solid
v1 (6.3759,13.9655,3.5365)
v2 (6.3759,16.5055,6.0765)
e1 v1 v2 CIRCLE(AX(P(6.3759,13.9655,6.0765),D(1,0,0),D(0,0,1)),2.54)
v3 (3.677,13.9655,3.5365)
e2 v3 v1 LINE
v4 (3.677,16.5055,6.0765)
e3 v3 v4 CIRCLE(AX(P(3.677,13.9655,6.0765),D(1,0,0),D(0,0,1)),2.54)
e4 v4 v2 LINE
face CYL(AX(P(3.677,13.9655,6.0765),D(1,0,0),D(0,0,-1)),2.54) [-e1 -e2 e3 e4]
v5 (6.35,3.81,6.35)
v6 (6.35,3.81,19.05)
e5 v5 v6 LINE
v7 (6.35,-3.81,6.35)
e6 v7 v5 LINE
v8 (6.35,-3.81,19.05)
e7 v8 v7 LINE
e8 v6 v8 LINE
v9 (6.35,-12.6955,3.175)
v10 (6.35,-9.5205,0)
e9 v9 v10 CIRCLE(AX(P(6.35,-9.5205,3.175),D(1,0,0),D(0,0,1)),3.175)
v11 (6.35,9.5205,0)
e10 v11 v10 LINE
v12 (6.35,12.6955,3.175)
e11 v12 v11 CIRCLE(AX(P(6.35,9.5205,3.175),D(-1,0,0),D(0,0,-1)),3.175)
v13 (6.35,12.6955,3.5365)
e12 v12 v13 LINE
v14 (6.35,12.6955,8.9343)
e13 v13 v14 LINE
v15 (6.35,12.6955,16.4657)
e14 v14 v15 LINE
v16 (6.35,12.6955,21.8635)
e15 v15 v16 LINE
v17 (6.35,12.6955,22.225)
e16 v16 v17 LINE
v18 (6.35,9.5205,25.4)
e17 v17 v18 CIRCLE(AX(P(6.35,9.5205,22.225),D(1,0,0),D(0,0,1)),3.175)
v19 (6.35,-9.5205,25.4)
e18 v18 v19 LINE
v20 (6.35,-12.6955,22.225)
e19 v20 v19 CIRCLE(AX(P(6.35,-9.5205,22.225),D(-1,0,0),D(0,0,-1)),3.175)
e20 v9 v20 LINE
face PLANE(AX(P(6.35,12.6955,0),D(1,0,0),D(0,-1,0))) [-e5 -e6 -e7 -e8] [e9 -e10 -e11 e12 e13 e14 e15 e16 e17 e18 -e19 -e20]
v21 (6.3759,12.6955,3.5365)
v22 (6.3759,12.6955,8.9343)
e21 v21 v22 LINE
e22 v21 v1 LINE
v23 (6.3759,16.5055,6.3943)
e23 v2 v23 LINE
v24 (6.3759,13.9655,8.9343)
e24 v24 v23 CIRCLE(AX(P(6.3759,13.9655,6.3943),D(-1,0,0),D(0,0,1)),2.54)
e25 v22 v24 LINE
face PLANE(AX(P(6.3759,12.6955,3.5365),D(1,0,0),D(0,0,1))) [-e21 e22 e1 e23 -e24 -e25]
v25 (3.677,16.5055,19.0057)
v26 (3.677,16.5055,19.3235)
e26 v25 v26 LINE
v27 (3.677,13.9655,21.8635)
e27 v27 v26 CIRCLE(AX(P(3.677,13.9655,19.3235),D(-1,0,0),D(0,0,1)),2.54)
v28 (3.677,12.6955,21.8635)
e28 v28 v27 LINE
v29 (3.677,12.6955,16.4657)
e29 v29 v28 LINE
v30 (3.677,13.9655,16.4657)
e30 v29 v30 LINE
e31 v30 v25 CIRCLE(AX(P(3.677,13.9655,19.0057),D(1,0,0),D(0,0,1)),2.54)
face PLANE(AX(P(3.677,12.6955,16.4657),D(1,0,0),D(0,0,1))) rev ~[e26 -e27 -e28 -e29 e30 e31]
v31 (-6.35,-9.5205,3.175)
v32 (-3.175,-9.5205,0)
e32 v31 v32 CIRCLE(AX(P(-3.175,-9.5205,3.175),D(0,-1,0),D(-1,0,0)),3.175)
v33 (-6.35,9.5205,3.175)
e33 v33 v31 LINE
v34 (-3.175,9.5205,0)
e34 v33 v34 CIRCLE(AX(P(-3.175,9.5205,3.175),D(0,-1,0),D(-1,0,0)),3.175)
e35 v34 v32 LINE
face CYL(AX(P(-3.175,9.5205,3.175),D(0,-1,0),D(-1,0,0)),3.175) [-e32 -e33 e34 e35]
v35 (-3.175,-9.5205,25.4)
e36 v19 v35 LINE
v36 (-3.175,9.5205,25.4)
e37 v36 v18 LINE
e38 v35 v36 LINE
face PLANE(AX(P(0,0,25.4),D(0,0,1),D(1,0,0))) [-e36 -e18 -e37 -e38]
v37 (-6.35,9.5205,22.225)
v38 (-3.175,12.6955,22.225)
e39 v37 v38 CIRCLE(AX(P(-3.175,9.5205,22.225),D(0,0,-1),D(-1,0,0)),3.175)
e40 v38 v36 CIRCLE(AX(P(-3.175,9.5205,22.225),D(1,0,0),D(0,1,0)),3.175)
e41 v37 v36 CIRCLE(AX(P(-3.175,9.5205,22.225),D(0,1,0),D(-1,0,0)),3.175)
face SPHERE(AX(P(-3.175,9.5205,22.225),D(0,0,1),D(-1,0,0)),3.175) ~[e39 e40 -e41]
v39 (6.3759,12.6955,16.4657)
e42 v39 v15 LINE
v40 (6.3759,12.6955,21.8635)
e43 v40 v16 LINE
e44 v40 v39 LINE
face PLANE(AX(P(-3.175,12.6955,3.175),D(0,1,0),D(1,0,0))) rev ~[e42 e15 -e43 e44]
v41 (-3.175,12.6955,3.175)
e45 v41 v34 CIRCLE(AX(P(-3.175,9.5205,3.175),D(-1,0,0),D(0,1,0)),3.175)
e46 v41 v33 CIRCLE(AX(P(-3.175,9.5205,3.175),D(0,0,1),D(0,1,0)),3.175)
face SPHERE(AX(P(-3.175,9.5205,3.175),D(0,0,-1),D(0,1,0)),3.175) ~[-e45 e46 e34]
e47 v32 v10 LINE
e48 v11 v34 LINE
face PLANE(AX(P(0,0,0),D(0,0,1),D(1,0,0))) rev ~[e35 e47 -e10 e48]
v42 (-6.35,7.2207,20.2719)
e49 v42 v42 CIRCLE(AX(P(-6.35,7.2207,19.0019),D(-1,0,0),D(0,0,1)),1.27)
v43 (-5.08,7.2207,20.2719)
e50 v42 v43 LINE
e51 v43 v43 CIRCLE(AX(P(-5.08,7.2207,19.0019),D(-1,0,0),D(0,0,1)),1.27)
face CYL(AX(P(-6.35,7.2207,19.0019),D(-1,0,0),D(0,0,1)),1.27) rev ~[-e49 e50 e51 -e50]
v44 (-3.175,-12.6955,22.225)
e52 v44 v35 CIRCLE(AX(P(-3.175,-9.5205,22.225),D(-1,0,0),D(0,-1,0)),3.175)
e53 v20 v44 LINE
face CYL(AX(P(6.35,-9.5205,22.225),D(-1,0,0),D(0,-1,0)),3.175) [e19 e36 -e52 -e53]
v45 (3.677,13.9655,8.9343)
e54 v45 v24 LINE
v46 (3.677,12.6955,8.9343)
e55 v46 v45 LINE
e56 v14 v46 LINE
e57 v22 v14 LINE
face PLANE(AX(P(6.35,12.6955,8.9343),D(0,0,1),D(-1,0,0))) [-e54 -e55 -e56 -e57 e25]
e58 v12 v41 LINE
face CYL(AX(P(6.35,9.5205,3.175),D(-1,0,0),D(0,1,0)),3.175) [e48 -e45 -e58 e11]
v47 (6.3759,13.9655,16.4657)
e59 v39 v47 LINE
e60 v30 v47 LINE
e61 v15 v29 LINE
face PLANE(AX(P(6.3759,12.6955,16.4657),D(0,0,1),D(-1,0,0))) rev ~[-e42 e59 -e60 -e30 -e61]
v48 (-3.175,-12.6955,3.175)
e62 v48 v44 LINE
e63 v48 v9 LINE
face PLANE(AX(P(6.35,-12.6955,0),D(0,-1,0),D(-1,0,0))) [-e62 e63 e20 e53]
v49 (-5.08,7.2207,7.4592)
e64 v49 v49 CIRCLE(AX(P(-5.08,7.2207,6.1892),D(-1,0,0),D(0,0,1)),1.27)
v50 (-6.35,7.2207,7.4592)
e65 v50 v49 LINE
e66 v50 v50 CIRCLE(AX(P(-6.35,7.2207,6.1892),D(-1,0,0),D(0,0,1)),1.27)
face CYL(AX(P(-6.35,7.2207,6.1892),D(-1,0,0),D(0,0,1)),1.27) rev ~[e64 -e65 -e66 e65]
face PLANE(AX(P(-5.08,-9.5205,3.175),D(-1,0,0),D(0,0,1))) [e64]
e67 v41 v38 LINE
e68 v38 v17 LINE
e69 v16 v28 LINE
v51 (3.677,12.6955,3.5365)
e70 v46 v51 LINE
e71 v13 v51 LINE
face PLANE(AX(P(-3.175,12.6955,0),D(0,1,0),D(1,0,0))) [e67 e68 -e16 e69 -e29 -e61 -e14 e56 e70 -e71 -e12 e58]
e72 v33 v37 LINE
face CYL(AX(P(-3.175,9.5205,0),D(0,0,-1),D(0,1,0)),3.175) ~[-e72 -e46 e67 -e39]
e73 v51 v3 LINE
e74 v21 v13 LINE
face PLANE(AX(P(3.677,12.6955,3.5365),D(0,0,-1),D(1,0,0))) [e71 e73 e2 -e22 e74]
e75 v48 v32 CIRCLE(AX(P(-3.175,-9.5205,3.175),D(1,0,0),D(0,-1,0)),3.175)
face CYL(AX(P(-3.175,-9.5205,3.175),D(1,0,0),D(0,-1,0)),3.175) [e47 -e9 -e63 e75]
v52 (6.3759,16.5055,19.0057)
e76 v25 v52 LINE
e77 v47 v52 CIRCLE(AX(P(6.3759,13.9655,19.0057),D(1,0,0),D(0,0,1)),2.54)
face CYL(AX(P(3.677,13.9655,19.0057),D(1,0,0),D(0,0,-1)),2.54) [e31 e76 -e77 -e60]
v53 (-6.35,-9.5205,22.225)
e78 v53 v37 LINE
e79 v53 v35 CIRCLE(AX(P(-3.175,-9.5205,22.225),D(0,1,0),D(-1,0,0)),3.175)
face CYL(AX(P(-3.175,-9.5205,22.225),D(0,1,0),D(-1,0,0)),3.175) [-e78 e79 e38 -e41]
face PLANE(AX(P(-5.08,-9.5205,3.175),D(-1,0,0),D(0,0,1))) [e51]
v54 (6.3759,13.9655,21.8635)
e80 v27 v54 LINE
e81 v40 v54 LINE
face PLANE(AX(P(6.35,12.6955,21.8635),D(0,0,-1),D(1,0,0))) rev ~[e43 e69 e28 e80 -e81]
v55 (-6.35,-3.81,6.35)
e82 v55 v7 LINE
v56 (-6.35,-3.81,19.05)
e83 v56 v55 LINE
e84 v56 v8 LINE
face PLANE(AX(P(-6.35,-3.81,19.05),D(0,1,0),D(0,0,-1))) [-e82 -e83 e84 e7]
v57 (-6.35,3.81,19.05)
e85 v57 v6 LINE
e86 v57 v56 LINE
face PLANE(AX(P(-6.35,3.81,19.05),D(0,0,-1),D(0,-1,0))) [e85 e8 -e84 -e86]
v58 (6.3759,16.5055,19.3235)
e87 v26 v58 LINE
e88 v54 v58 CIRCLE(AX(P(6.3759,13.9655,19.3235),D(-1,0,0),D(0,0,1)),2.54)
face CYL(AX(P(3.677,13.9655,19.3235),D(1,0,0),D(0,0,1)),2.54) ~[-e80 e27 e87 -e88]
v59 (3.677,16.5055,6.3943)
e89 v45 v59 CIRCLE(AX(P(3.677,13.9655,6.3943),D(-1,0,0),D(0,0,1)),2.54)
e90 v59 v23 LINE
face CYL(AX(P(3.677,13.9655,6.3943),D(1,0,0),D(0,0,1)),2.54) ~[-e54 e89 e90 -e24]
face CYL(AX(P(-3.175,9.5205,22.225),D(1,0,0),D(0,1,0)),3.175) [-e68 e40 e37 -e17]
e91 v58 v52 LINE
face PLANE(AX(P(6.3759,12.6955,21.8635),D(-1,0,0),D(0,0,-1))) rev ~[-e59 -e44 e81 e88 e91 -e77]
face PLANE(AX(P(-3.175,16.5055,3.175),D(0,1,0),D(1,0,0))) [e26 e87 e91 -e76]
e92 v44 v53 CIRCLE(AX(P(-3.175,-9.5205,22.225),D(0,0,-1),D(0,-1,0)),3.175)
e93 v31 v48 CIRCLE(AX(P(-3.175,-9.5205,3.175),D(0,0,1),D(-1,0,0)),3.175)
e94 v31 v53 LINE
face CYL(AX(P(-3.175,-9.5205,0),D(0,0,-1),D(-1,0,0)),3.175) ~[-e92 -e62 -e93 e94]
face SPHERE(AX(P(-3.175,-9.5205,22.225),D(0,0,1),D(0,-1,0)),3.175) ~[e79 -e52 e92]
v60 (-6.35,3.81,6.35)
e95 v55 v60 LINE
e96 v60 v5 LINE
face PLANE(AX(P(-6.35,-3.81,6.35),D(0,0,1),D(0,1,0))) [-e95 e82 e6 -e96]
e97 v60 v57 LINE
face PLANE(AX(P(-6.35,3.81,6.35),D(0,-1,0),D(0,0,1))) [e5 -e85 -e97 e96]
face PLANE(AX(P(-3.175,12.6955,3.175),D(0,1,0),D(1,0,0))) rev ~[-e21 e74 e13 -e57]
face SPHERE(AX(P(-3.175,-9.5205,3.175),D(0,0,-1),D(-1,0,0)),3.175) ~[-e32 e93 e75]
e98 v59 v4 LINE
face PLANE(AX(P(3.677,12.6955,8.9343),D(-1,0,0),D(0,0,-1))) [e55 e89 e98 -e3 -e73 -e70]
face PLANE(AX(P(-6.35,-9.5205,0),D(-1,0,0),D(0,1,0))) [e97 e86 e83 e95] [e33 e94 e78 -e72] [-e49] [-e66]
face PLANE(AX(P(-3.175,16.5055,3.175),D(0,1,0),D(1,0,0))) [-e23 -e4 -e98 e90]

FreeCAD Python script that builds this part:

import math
import FreeCAD as App
import Part
import Sketcher
from FreeCAD import Vector
Q = App.Units.Quantity


def edges_at(feature, points):
    """Names of the edges that pass closest to the given points."""
    edges = feature.Shape.Edges
    near = lambda p: min(range(len(edges)), key=lambda i: edges[i].distToShape(Part.Vertex(*p))[0])
    return sorted({f"Edge{near(p) + 1}" for p in points})

doc = App.newDocument("Part")
body = doc.addObject("PartDesign::Body", "Body")

# Sketch on XY plane
sketch1 = body.newObject("Sketcher::SketchObject", "Sketch")
sketch1.AttachmentSupport = (doc.getObject("XY_Plane"), [""])
sketch1.MapMode = "FlatFace"
sketch1.addGeometry([
    Part.LineSegment(Vector(-3.2, -12.7, 0), Vector(6.3, -12.7, 0)),  # 0
    Part.LineSegment(Vector(6.3, -12.7, 0), Vector(6.3, 12.7, 0)),  # 1
    Part.LineSegment(Vector(6.3, 12.7, 0), Vector(-3.2, 12.7, 0)),  # 2
    Part.ArcOfCircle(Part.Circle(Vector(-3.2, 9.5, 0), Vector(0, 0, 1), 3.2), math.radians(90), math.radians(180)),  # 3
    Part.LineSegment(Vector(-6.3, 9.5, 0), Vector(-6.3, -9.5, 0)),  # 4
    Part.ArcOfCircle(Part.Circle(Vector(-3.2, -9.5, 0), Vector(0, 0, 1), 3.2), math.radians(180), math.radians(270)),  # 5
], False)
sketch1.addConstraint([
    Sketcher.Constraint("Coincident", 0, 2, 1, 1),
    Sketcher.Constraint("Coincident", 1, 2, 2, 1),
    Sketcher.Constraint("Tangent", 2, 2, 3, 1),
    Sketcher.Constraint("Tangent", 3, 2, 4, 1),
    Sketcher.Constraint("Tangent", 4, 2, 5, 1),
    Sketcher.Constraint("Tangent", 5, 2, 0, 1),
    Sketcher.Constraint("Horizontal", 0),
    Sketcher.Constraint("Vertical", 1),
    Sketcher.Constraint("Horizontal", 2),
    Sketcher.Constraint("Vertical", 4),
    Sketcher.Constraint("Equal", 3, 5),
    Sketcher.Constraint("Radius", 3, Q("0.125 in")),
    Sketcher.Constraint("DistanceX", 3, 2, 1, 2, Q("0.5 in")),
    Sketcher.Constraint("DistanceX", 3, 3, -1, 1, Q("0.125 in")),
    Sketcher.Constraint("DistanceY", 1, 1, 1, 2, 25.391),
    Sketcher.Constraint("DistanceY", -1, 1, 3, 3, 9.5205),
])
pad1 = body.newObject("PartDesign::Pad", "Pad")
pad1.Profile = sketch1
pad1.Length = Q("1 in")
doc.recompute()

fillet = body.newObject("PartDesign::Fillet", "Fillet")
fillet.Base = (pad1, edges_at(pad1, [
    (-6.35, 0, 25.4),
    (-5.42, -11.766, 25.4),
    (1.587, -12.695, 25.4),
    (1.587, 12.695, 25.4),
    (-5.42, 11.766, 25.4),
    (-5.42, 11.766, 0),
    (1.587, 12.695, 0),
    (-5.42, -11.766, 0),
    (1.587, -12.695, 0),
    (-6.35, 0, 0),
]))
fillet.Radius = Q("0.125 in")

# Sketch on XZ plane
sketch2 = body.newObject("Sketcher::SketchObject", "Sketch001")
sketch2.AttachmentSupport = (doc.getObject("XZ_Plane"), [""])
sketch2.MapMode = "FlatFace"
sketch2.AttachmentOffset = App.Placement(Vector(0, 0, -12.6955), App.Rotation())
sketch2.addGeometry([
    Part.Circle(Vector(-0.5, 19.4, 0), Vector(0, 0, 1), 2.5),
    Part.Circle(Vector(-0.5, 6, 0), Vector(0, 0, 1), 2.5),
], False)
sketch2.addConstraint([
    Sketcher.Constraint("Equal", 0, 1),
    Sketcher.Constraint("Vertical", 0, 3, 1, 3),
    Sketcher.Constraint("Diameter", 0, Q("0.2 in")),
    Sketcher.Constraint("DistanceX", 0, 3, -1, 1, 0.5034),
    Sketcher.Constraint("DistanceY", -1, 1, 0, 3, 19.381),
    Sketcher.Constraint("DistanceY", -1, 1, 1, 3, 6.019),
])
pad2 = body.newObject("PartDesign::Pad", "Pad001")
pad2.Profile = sketch2
pad2.Length = Q("0.5 in")
pad2.Reversed = True

# Sketch on YZ plane
sketch3 = body.newObject("Sketcher::SketchObject", "Sketch002")
sketch3.AttachmentSupport = (doc.getObject("YZ_Plane"), [""])
sketch3.MapMode = "FlatFace"
sketch3.AttachmentOffset = App.Placement(Vector(0, 0, -0.25 * 25.4), App.Rotation())
sketch3.addGeometry([
    Part.LineSegment(Vector(4, 6, 0), Vector(-4, 6, 0)),
    Part.LineSegment(Vector(-4, 6, 0), Vector(-4, 19, 0)),
    Part.LineSegment(Vector(-4, 19, 0), Vector(4, 19, 0)),
    Part.LineSegment(Vector(4, 19, 0), Vector(4, 6, 0)),
], False)
sketch3.addConstraint([
    Sketcher.Constraint("Coincident", 0, 2, 1, 1),
    Sketcher.Constraint("Coincident", 1, 2, 2, 1),
    Sketcher.Constraint("Coincident", 2, 2, 3, 1),
    Sketcher.Constraint("Coincident", 3, 2, 0, 1),
    Sketcher.Constraint("Horizontal", 0),
    Sketcher.Constraint("Vertical", 1),
    Sketcher.Constraint("Horizontal", 2),
    Sketcher.Constraint("Vertical", 3),
    Sketcher.Constraint("DistanceX", 0, 2, 0, 1, Q("0.3 in")),
    Sketcher.Constraint("DistanceY", 1, 1, 1, 2, Q("0.5 in")),
    Sketcher.Constraint("DistanceX", 0, 2, -1, 1, Q("0.15 in")),
    Sketcher.Constraint("DistanceY", -1, 1, 0, 2, Q("0.25 in")),
])
pocket1 = body.newObject("PartDesign::Pocket", "Pocket")
pocket1.Profile = sketch3
pocket1.Length = Q("0.5 in")
pocket1.Reversed = True

# Sketch on XZ plane
sketch4 = body.newObject("Sketcher::SketchObject", "Sketch003")
sketch4.AttachmentSupport = (doc.getObject("XZ_Plane"), [""])
sketch4.MapMode = "FlatFace"
sketch4.AttachmentOffset = App.Placement(Vector(0, 0, -25.3955), App.Rotation())
sketch4.addGeometry([
    Part.LineSegment(Vector(11, -3, 0), Vector(-10, -3, 0)),
    Part.LineSegment(Vector(-10, -3, 0), Vector(-10, 29, 0)),
    Part.LineSegment(Vector(-10, 29, 0), Vector(11, 29, 0)),
    Part.LineSegment(Vector(11, 29, 0), Vector(11, -3, 0)),
], False)
sketch4.addConstraint([
    Sketcher.Constraint("Coincident", 0, 2, 1, 1),
    Sketcher.Constraint("Coincident", 1, 2, 2, 1),
    Sketcher.Constraint("Coincident", 2, 2, 3, 1),
    Sketcher.Constraint("Coincident", 3, 2, 0, 1),
    Sketcher.Constraint("Horizontal", 0),
    Sketcher.Constraint("Vertical", 1),
    Sketcher.Constraint("Horizontal", 2),
    Sketcher.Constraint("Vertical", 3),
    Sketcher.Constraint("DistanceX", 0, 2, 0, 1, 20.3814),
    Sketcher.Constraint("DistanceY", 1, 1, 1, 2, 31.3632),
    Sketcher.Constraint("DistanceX", 0, 2, -1, 1, 9.865),
    Sketcher.Constraint("DistanceY", 0, 2, -1, 1, 2.7454),
])
pocket2 = body.newObject("PartDesign::Pocket", "Pocket001")
pocket2.Profile = sketch4
pocket2.Length = Q("0.5 in")
pocket2.Reversed = True

# Sketch on XZ plane
sketch5 = body.newObject("Sketcher::SketchObject", "Sketch004")
sketch5.AttachmentSupport = (doc.getObject("XZ_Plane"), [""])
sketch5.MapMode = "FlatFace"
sketch5.AttachmentOffset = App.Placement(Vector(0, 0, -12.6955), App.Rotation())
sketch5.addGeometry([
    Part.LineSegment(Vector(6.4, 16.5, 0), Vector(3.7, 16.5, 0)),  # 0
    Part.LineSegment(Vector(3.7, 16.5, 0), Vector(3.7, 21.9, 0)),  # 1
    Part.LineSegment(Vector(3.7, 21.9, 0), Vector(6.4, 21.9, 0)),  # 2
    Part.LineSegment(Vector(6.4, 21.9, 0), Vector(6.4, 16.5, 0)),  # 3
    Part.LineSegment(Vector(3.7, 3.5, 0), Vector(3.7, 8.9, 0)),  # 4
    Part.LineSegment(Vector(3.7, 8.9, 0), Vector(6.4, 8.9, 0)),  # 5
    Part.LineSegment(Vector(6.4, 8.9, 0), Vector(6.4, 3.5, 0)),  # 6
    Part.LineSegment(Vector(6.4, 3.5, 0), Vector(3.7, 3.5, 0)),  # 7
], False)
sketch5.addConstraint([
    Sketcher.Constraint("Coincident", 0, 2, 1, 1),
    Sketcher.Constraint("Coincident", 1, 2, 2, 1),
    Sketcher.Constraint("Coincident", 2, 2, 3, 1),
    Sketcher.Constraint("Coincident", 3, 2, 0, 1),
    Sketcher.Constraint("Coincident", 4, 2, 5, 1),
    Sketcher.Constraint("Coincident", 5, 2, 6, 1),
    Sketcher.Constraint("Coincident", 6, 2, 7, 1),
    Sketcher.Constraint("Coincident", 7, 2, 4, 1),
    Sketcher.Constraint("Horizontal", 0),
    Sketcher.Constraint("Vertical", 1),
    Sketcher.Constraint("Horizontal", 2),
    Sketcher.Constraint("Vertical", 3),
    Sketcher.Constraint("Vertical", 4),
    Sketcher.Constraint("Horizontal", 5),
    Sketcher.Constraint("Vertical", 6),
    Sketcher.Constraint("Horizontal", 7),
    Sketcher.Constraint("Vertical", 1, 2, 4, 2),
    Sketcher.Constraint("Vertical", 3, 2, 5, 2),
    Sketcher.Constraint("Equal", 3, 4),
    Sketcher.Constraint("DistanceY", 1, 1, 1, 2, Q("0.2125 in")),
    Sketcher.Constraint("DistanceX", 0, 2, 0, 1, 2.699),
    Sketcher.Constraint("DistanceY", 4, 2, 0, 2, Q("0.2965 in")),
    Sketcher.Constraint("DistanceX", -1, 1, 0, 2, 3.677),
    Sketcher.Constraint("DistanceY", -1, 1, 0, 2, 16.4657),
])
pad3 = body.newObject("PartDesign::Pad", "Pad002")
pad3.Profile = sketch5
pad3.Length = Q("0.15 in")
pad3.Reversed = True
doc.recompute()

fillet2 = body.newObject("PartDesign::Fillet", "Fillet001")
fillet2.Base = (pad3, edges_at(pad3, [
    (5.027, 16.506, 8.934),
    (5.027, 16.506, 3.537),
    (5.027, 16.506, 16.466),
    (5.027, 16.506, 21.863),
]))
fillet2.Radius = Q("0.1 in")

# Sketch on YZ plane
sketch6 = body.newObject("Sketcher::SketchObject", "Sketch005")
sketch6.AttachmentSupport = (doc.getObject("YZ_Plane"), [""])
sketch6.MapMode = "FlatFace"
sketch6.AttachmentOffset = App.Placement(Vector(0, 0, -0.25 * 25.4), App.Rotation())
sketch6.addGeometry([
    Part.Circle(Vector(7.2, 6.2, 0), Vector(0, 0, 1), 1.3),
    Part.Circle(Vector(7.2, 19, 0), Vector(0, 0, 1), 1.3),
], False)
sketch6.addConstraint([
    Sketcher.Constraint("Equal", 0, 1),
    Sketcher.Constraint("Vertical", 0, 3, 1, 3),
    Sketcher.Constraint("Diameter", 0, Q("0.1 in")),
    Sketcher.Constraint("DistanceY", -1, 1, 1, 3, Q("0.7481 in")),
    Sketcher.Constraint("DistanceX", -1, 1, 0, 3, 7.2207),
    Sketcher.Constraint("DistanceY", -1, 1, 0, 3, 6.1892),
])
pocket3 = body.newObject("PartDesign::Pocket", "Pocket002")
pocket3.Profile = sketch6
pocket3.Length = Q("0.05 in")
pocket3.Reversed = True

doc.recompute()
